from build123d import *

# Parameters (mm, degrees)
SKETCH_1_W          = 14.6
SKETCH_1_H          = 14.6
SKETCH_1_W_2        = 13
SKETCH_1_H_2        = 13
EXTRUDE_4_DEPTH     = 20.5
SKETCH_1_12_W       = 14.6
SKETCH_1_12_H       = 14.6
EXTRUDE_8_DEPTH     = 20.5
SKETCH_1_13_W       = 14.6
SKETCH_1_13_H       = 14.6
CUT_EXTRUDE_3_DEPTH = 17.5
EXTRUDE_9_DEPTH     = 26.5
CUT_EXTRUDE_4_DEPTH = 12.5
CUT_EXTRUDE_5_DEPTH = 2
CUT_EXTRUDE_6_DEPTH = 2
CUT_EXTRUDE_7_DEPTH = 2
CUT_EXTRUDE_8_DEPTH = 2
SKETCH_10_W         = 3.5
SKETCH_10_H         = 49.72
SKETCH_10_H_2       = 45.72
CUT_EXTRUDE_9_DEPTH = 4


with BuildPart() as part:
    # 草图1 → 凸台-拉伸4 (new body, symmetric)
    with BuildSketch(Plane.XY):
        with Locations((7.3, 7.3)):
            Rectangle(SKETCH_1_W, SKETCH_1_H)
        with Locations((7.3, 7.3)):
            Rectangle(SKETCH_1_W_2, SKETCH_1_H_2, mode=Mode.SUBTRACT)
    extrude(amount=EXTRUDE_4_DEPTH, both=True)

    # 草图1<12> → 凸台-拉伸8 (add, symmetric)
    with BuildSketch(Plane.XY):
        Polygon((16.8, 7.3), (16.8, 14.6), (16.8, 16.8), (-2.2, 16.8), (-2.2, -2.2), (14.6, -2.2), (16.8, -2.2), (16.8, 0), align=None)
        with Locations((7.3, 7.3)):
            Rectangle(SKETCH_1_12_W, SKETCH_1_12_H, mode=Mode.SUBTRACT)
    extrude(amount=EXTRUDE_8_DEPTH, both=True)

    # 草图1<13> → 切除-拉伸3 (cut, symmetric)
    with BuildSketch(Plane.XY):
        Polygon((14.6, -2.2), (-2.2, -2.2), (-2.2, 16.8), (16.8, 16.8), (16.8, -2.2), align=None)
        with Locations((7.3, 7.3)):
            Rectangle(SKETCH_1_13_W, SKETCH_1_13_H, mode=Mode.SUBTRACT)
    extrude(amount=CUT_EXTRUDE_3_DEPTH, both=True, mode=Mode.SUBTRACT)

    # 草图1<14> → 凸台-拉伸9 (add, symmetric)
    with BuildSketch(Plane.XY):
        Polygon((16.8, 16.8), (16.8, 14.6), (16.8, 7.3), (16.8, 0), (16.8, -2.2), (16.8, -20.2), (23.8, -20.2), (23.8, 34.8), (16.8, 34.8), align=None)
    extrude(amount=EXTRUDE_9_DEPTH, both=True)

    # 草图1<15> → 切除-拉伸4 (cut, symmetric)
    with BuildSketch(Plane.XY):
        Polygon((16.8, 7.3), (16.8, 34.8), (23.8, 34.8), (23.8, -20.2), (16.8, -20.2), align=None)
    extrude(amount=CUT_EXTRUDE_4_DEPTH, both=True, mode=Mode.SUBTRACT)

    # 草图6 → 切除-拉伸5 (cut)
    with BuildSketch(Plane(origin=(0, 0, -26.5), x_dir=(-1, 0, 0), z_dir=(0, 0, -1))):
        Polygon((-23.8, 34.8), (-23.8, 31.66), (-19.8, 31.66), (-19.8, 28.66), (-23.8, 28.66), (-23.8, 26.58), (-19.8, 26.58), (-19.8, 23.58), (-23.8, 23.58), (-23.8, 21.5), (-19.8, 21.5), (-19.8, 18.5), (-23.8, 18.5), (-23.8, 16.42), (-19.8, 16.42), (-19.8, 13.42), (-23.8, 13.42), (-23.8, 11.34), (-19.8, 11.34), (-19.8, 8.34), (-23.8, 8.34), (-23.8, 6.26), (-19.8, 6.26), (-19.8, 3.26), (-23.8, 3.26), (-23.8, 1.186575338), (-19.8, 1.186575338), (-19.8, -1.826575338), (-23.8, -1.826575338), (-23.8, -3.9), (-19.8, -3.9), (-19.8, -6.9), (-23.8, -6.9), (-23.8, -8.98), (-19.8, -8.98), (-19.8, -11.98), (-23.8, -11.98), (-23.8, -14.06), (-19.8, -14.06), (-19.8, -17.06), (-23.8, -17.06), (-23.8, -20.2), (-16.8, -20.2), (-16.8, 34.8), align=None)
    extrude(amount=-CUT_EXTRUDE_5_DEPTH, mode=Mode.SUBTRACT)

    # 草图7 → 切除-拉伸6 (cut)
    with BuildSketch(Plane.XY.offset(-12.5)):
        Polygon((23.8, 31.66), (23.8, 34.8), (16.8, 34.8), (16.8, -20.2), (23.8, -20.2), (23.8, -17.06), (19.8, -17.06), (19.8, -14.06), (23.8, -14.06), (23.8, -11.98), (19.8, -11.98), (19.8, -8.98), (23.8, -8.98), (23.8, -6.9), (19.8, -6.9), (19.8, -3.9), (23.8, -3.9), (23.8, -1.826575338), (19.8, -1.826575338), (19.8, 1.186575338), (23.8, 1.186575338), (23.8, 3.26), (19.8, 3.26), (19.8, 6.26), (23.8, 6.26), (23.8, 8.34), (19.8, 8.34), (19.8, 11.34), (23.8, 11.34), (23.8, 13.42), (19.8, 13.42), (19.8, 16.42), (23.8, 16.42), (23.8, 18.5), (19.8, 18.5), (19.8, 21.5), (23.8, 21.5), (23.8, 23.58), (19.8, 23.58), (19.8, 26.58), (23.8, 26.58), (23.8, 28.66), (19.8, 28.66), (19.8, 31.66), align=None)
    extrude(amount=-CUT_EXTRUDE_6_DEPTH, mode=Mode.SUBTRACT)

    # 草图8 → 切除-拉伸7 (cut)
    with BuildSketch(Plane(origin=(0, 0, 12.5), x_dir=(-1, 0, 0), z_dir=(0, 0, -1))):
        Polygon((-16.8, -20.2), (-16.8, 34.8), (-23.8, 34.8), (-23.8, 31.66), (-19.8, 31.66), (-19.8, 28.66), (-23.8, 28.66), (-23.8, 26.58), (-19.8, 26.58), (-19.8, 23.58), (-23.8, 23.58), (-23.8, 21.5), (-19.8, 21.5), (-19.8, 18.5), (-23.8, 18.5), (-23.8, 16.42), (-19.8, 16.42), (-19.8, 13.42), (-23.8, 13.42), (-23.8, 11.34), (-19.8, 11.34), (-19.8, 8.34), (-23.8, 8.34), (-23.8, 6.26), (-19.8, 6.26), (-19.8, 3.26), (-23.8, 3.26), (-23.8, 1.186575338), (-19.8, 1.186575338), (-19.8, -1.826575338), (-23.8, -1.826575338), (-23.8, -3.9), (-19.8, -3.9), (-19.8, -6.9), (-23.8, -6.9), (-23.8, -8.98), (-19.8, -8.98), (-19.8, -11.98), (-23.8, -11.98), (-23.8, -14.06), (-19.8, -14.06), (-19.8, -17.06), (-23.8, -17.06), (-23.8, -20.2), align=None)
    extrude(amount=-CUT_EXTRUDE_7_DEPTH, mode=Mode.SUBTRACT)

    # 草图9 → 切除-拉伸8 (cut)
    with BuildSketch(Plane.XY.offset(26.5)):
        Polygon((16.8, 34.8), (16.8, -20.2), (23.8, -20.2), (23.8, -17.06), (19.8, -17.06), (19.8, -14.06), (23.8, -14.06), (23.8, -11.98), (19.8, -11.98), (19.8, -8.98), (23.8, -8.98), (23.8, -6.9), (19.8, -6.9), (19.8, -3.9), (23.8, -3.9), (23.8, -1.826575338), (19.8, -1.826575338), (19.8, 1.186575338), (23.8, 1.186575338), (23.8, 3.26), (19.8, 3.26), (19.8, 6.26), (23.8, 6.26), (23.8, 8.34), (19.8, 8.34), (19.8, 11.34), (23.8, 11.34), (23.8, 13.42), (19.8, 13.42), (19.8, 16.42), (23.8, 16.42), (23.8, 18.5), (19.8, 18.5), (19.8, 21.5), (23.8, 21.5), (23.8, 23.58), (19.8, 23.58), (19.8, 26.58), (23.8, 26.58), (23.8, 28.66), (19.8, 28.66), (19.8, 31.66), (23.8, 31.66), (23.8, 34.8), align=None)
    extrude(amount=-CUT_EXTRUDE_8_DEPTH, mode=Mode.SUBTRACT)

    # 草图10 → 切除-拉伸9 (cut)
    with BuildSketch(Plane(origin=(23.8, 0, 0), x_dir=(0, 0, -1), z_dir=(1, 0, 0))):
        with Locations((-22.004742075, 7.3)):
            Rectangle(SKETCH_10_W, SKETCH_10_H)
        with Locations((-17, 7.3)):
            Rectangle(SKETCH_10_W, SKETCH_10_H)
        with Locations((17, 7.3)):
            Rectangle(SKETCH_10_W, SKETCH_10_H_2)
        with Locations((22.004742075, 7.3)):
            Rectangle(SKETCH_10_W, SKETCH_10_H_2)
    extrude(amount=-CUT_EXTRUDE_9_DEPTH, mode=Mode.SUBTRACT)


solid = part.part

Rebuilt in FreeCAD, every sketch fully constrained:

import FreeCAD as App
import Part
import Sketcher

V = App.Vector
Q = App.Units.Quantity


def add_polygon(sketch, points):
    """Adds a closed chain of lines whose ends are joined by coincident constraints."""
    first, n = sketch.GeometryCount, len(points)
    for a, b in zip(points, points[1:] + points[:1]):
        sketch.addGeometry(Part.LineSegment(App.Vector(*a, 0), App.Vector(*b, 0)), False)
    for i in range(n):
        sketch.addConstraint(Sketcher.Constraint("Coincident", first + i, 2, first + (i + 1) % n, 1))

doc = App.newDocument("Part")
body = doc.addObject("PartDesign::Body", "Body")

# Sketch on XY plane
sketch1 = body.newObject("Sketcher::SketchObject", "Sketch")
sketch1.AttachmentSupport = (doc.getObject("XY_Plane"), [""])
sketch1.MapMode = "FlatFace"
add_polygon(sketch1, [(0, 15), (0, 0), (15, 0), (15, 15)])  # lines 0-3
add_polygon(sketch1, [(14, 1), (1, 1), (1, 14), (14, 14)])  # lines 4-7
sketch1.addConstraint(Sketcher.Constraint("Vertical", 0))
sketch1.addConstraint(Sketcher.Constraint("Horizontal", 1))
sketch1.addConstraint(Sketcher.Constraint("Vertical", 2))
sketch1.addConstraint(Sketcher.Constraint("Horizontal", 3))
sketch1.addConstraint(Sketcher.Constraint("Horizontal", 4))
sketch1.addConstraint(Sketcher.Constraint("Vertical", 5))
sketch1.addConstraint(Sketcher.Constraint("Horizontal", 6))
sketch1.addConstraint(Sketcher.Constraint("Vertical", 7))
sketch1.addConstraint(Sketcher.Constraint("Coincident", 0, 2, -1, 1))
sketch1.addConstraint(Sketcher.Constraint("Equal", 3, 0))
sketch1.addConstraint(Sketcher.Constraint("Equal", 6, 5))
sketch1.addConstraint(Sketcher.Constraint("DistanceX", 4, 2, 4, 1, Q("13 mm")))
sketch1.addConstraint(Sketcher.Constraint("DistanceX", 1, 1, 1, 2, Q("14.6 mm")))
sketch1.addConstraint(Sketcher.Constraint("DistanceX", -1, 1, 4, 2, Q("0.8 mm")))
sketch1.addConstraint(Sketcher.Constraint("DistanceY", -1, 1, 4, 2, Q("0.8 mm")))
pad1 = body.newObject("PartDesign::Pad", "Pad")
pad1.Profile = sketch1
pad1.Length = 41
pad1.Midplane = True

# Sketch on XY plane
sketch2 = body.newObject("Sketcher::SketchObject", "Sketch001")
sketch2.AttachmentSupport = (doc.getObject("XY_Plane"), [""])
sketch2.MapMode = "FlatFace"
add_polygon(sketch2, [(17, 17), (-2, 17), (-2, -2), (17, -2)])  # lines 0-3
add_polygon(sketch2, [(15, 0), (0, 0), (0, 15), (15, 15)])  # lines 4-7
sketch2.addConstraint(Sketcher.Constraint("Horizontal", 0))
sketch2.addConstraint(Sketcher.Constraint("Vertical", 1))
sketch2.addConstraint(Sketcher.Constraint("Horizontal", 2))
sketch2.addConstraint(Sketcher.Constraint("Vertical", 3))
sketch2.addConstraint(Sketcher.Constraint("Horizontal", 4))
sketch2.addConstraint(Sketcher.Constraint("Vertical", 5))
sketch2.addConstraint(Sketcher.Constraint("Horizontal", 6))
sketch2.addConstraint(Sketcher.Constraint("Vertical", 7))
sketch2.addConstraint(Sketcher.Constraint("Coincident", 4, 2, -1, 1))
sketch2.addConstraint(Sketcher.Constraint("Equal", 2, 1))
sketch2.addConstraint(Sketcher.Constraint("Equal", 6, 5))
sketch2.addConstraint(Sketcher.Constraint("DistanceX", 0, 2, 0, 1, Q("19 mm")))
sketch2.addConstraint(Sketcher.Constraint("DistanceX", 4, 2, 4, 1, Q("14.6 mm")))
sketch2.addConstraint(Sketcher.Constraint("DistanceX", 0, 2, -1, 1, Q("2.2 mm")))
sketch2.addConstraint(Sketcher.Constraint("DistanceY", -1, 1, 0, 2, Q("16.8 mm")))
pad2 = body.newObject("PartDesign::Pad", "Pad001")
pad2.Profile = sketch2
pad2.Length = 41
pad2.Midplane = True

# Sketch on XY plane
sketch3 = body.newObject("Sketcher::SketchObject", "Sketch002")
sketch3.AttachmentSupport = (doc.getObject("XY_Plane"), [""])
sketch3.MapMode = "FlatFace"
add_polygon(sketch3, [(-2, -2), (17, -2), (17, 17), (-2, 17)])  # lines 0-3
add_polygon(sketch3, [(0, 0), (0, 15), (15, 15), (15, 0)])  # lines 4-7
sketch3.addConstraint(Sketcher.Constraint("Horizontal", 0))
sketch3.addConstraint(Sketcher.Constraint("Vertical", 1))
sketch3.addConstraint(Sketcher.Constraint("Horizontal", 2))
sketch3.addConstraint(Sketcher.Constraint("Vertical", 3))
sketch3.addConstraint(Sketcher.Constraint("Vertical", 4))
sketch3.addConstraint(Sketcher.Constraint("Horizontal", 5))
sketch3.addConstraint(Sketcher.Constraint("Vertical", 6))
sketch3.addConstraint(Sketcher.Constraint("Horizontal", 7))
sketch3.addConstraint(Sketcher.Constraint("Coincident", 7, 2, -1, 1))
sketch3.addConstraint(Sketcher.Constraint("Equal", 2, 1))
sketch3.addConstraint(Sketcher.Constraint("Equal", 7, 4))
sketch3.addConstraint(Sketcher.Constraint("DistanceX", 0, 1, 0, 2, Q("19 mm")))
sketch3.addConstraint(Sketcher.Constraint("DistanceX", 5, 1, 5, 2, Q("14.6 mm")))
sketch3.addConstraint(Sketcher.Constraint("DistanceX", -1, 1, 0, 2, Q("16.8 mm")))
sketch3.addConstraint(Sketcher.Constraint("DistanceY", 0, 2, -1, 1, Q("2.2 mm")))
pocket1 = body.newObject("PartDesign::Pocket", "Pocket")
pocket1.Profile = sketch3
pocket1.Length = 35
pocket1.Midplane = True

# Sketch on XY plane
sketch4 = body.newObject("Sketcher::SketchObject", "Sketch003")
sketch4.AttachmentSupport = (doc.getObject("XY_Plane"), [""])
sketch4.MapMode = "FlatFace"
add_polygon(sketch4, [(17, -20), (24, -20), (24, 35), (17, 35)])  # lines 0-3
sketch4.addConstraint(Sketcher.Constraint("Horizontal", 0))
sketch4.addConstraint(Sketcher.Constraint("Vertical", 1))
sketch4.addConstraint(Sketcher.Constraint("Horizontal", 2))
sketch4.addConstraint(Sketcher.Constraint("Vertical", 3))
sketch4.addConstraint(Sketcher.Constraint("DistanceX", 0, 1, 0, 2, Q("7 mm")))
sketch4.addConstraint(Sketcher.Constraint("DistanceY", 1, 1, 1, 2, Q("55 mm")))
sketch4.addConstraint(Sketcher.Constraint("DistanceX", -1, 1, 0, 2, Q("23.8 mm")))
sketch4.addConstraint(Sketcher.Constraint("DistanceY", 0, 2, -1, 1, Q("20.2 mm")))
pad3 = body.newObject("PartDesign::Pad", "Pad002")
pad3.Profile = sketch4
pad3.Length = 53
pad3.Midplane = True

# Sketch on XY plane
sketch5 = body.newObject("Sketcher::SketchObject", "Sketch004")
sketch5.AttachmentSupport = (doc.getObject("XY_Plane"), [""])
sketch5.MapMode = "FlatFace"
add_polygon(sketch5, [(17, 35), (17, -20), (24, -20), (24, 35)])  # lines 0-3
sketch5.addConstraint(Sketcher.Constraint("Vertical", 0))
sketch5.addConstraint(Sketcher.Constraint("Horizontal", 1))
sketch5.addConstraint(Sketcher.Constraint("Vertical", 2))
sketch5.addConstraint(Sketcher.Constraint("Horizontal", 3))
sketch5.addConstraint(Sketcher.Constraint("DistanceX", 1, 1, 1, 2, Q("7 mm")))
sketch5.addConstraint(Sketcher.Constraint("DistanceY", 0, 2, 0, 1, Q("55 mm")))
sketch5.addConstraint(Sketcher.Constraint("DistanceX", -1, 1, 0, 2, Q("16.8 mm")))
sketch5.addConstraint(Sketcher.Constraint("DistanceY", 0, 2, -1, 1, Q("20.2 mm")))
pocket2 = body.newObject("PartDesign::Pocket", "Pocket001")
pocket2.Profile = sketch5
pocket2.Length = 25
pocket2.Midplane = True

# Sketch on XY plane
sketch6 = body.newObject("Sketcher::SketchObject", "Sketch005")
sketch6.AttachmentSupport = (doc.getObject("XY_Plane"), [""])
sketch6.MapMode = "FlatFace"
sketch6.AttachmentOffset = App.Placement(V(0, 0, -26.5), App.Rotation())
add_polygon(sketch6, [(23.8, 34.8), (23.8, 31.7), (19.8, 31.7), (19.8, 28.7), (23.8, 28.7), (23.8, 26.6), (19.8, 26.6), (19.8, 23.6), (23.8, 23.6), (23.8, 21.5), (19.8, 21.5), (19.8, 18.5), (23.8, 18.5), (23.8, 16.4), (19.8, 16.4), (19.8, 13.4), (23.8, 13.4), (23.8, 11.3), (19.8, 11.3), (19.8, 8.3), (23.8, 8.3), (23.8, 6.3), (19.8, 6.3), (19.8, 3.3), (23.8, 3.3), (23.8, 1.2), (19.8, 1.2), (19.8, -1.8), (23.8, -1.8), (23.8, -3.9), (19.8, -3.9), (19.8, -6.9), (23.8, -6.9), (23.8, -9), (19.8, -9), (19.8, -12), (23.8, -12), (23.8, -14.1), (19.8, -14.1), (19.8, -17.1), (23.8, -17.1), (23.8, -20.2), (16.8, -20.2), (16.8, 34.8)])  # lines 0-43
sketch6.addConstraint(Sketcher.Constraint("Vertical", 0))
sketch6.addConstraint(Sketcher.Constraint("Horizontal", 1))
sketch6.addConstraint(Sketcher.Constraint("Vertical", 2))
sketch6.addConstraint(Sketcher.Constraint("Horizontal", 3))
sketch6.addConstraint(Sketcher.Constraint("Vertical", 4))
sketch6.addConstraint(Sketcher.Constraint("Horizontal", 5))
sketch6.addConstraint(Sketcher.Constraint("Vertical", 6))
sketch6.addConstraint(Sketcher.Constraint("Horizontal", 7))
sketch6.addConstraint(Sketcher.Constraint("Vertical", 8))
sketch6.addConstraint(Sketcher.Constraint("Horizontal", 9))
sketch6.addConstraint(Sketcher.Constraint("Vertical", 10))
sketch6.addConstraint(Sketcher.Constraint("Horizontal", 11))
sketch6.addConstraint(Sketcher.Constraint("Vertical", 12))
sketch6.addConstraint(Sketcher.Constraint("Horizontal", 13))
sketch6.addConstraint(Sketcher.Constraint("Vertical", 14))
sketch6.addConstraint(Sketcher.Constraint("Horizontal", 15))
sketch6.addConstraint(Sketcher.Constraint("Vertical", 16))
sketch6.addConstraint(Sketcher.Constraint("Horizontal", 17))
sketch6.addConstraint(Sketcher.Constraint("Vertical", 18))
sketch6.addConstraint(Sketcher.Constraint("Horizontal", 19))
sketch6.addConstraint(Sketcher.Constraint("Vertical", 20))
sketch6.addConstraint(Sketcher.Constraint("Horizontal", 21))
sketch6.addConstraint(Sketcher.Constraint("Vertical", 22))
sketch6.addConstraint(Sketcher.Constraint("Horizontal", 23))
sketch6.addConstraint(Sketcher.Constraint("Vertical", 24))
sketch6.addConstraint(Sketcher.Constraint("Horizontal", 25))
sketch6.addConstraint(Sketcher.Constraint("Vertical", 26))
sketch6.addConstraint(Sketcher.Constraint("Horizontal", 27))
sketch6.addConstraint(Sketcher.Constraint("Vertical", 28))
sketch6.addConstraint(Sketcher.Constraint("Horizontal", 29))
sketch6.addConstraint(Sketcher.Constraint("Vertical", 30))
sketch6.addConstraint(Sketcher.Constraint("Horizontal", 31))
sketch6.addConstraint(Sketcher.Constraint("Vertical", 32))
sketch6.addConstraint(Sketcher.Constraint("Horizontal", 33))
sketch6.addConstraint(Sketcher.Constraint("Vertical", 34))
sketch6.addConstraint(Sketcher.Constraint("Horizontal", 35))
sketch6.addConstraint(Sketcher.Constraint("Vertical", 36))
sketch6.addConstraint(Sketcher.Constraint("Horizontal", 37))
sketch6.addConstraint(Sketcher.Constraint("Vertical", 38))
sketch6.addConstraint(Sketcher.Constraint("Horizontal", 39))
sketch6.addConstraint(Sketcher.Constraint("Vertical", 40))
sketch6.addConstraint(Sketcher.Constraint("Horizontal", 41))
sketch6.addConstraint(Sketcher.Constraint("Vertical", 42))
sketch6.addConstraint(Sketcher.Constraint("Horizontal", 43))
sketch6.addConstraint(Sketcher.Constraint("Vertical", 0, 2, 3, 2))
sketch6.addConstraint(Sketcher.Constraint("Vertical", 2, 2, 5, 2))
sketch6.addConstraint(Sketcher.Constraint("Vertical", 4, 2, 7, 2))
sketch6.addConstraint(Sketcher.Constraint("Vertical", 6, 2, 9, 2))
sketch6.addConstraint(Sketcher.Constraint("Vertical", 8, 2, 11, 2))
sketch6.addConstraint(Sketcher.Constraint("Vertical", 10, 2, 13, 2))
sketch6.addConstraint(Sketcher.Constraint("Vertical", 12, 2, 15, 2))
sketch6.addConstraint(Sketcher.Constraint("Vertical", 14, 2, 17, 2))
sketch6.addConstraint(Sketcher.Constraint("Vertical", 16, 2, 19, 2))
sketch6.addConstraint(Sketcher.Constraint("Vertical", 18, 2, 21, 2))
sketch6.addConstraint(Sketcher.Constraint("Vertical", 20, 2, 23, 2))
sketch6.addConstraint(Sketcher.Constraint("Vertical", 22, 2, 25, 2))
sketch6.addConstraint(Sketcher.Constraint("Vertical", 24, 2, 27, 2))
sketch6.addConstraint(Sketcher.Constraint("Vertical", 26, 2, 29, 2))
sketch6.addConstraint(Sketcher.Constraint("Vertical", 28, 2, 31, 2))
sketch6.addConstraint(Sketcher.Constraint("Vertical", 30, 2, 33, 2))
sketch6.addConstraint(Sketcher.Constraint("Vertical", 32, 2, 35, 2))
sketch6.addConstraint(Sketcher.Constraint("Vertical", 34, 2, 37, 2))
sketch6.addConstraint(Sketcher.Constraint("Vertical", 36, 2, 39, 2))
sketch6.addConstraint(Sketcher.Constraint("Equal", 2, 6))
sketch6.addConstraint(Sketcher.Constraint("Equal", 4, 8))
sketch6.addConstraint(Sketcher.Constraint("Equal", 6, 10))
sketch6.addConstraint(Sketcher.Constraint("Equal", 8, 12))
sketch6.addConstraint(Sketcher.Constraint("Equal", 10, 14))
sketch6.addConstraint(Sketcher.Constraint("Equal", 12, 16))
sketch6.addConstraint(Sketcher.Constraint("Equal", 14, 18))
sketch6.addConstraint(Sketcher.Constraint("Equal", 16, 20))
sketch6.addConstraint(Sketcher.Constraint("Equal", 18, 22))
sketch6.addConstraint(Sketcher.Constraint("Equal", 24, 28))
sketch6.addConstraint(Sketcher.Constraint("Equal", 22, 30))
sketch6.addConstraint(Sketcher.Constraint("Equal", 20, 32))
sketch6.addConstraint(Sketcher.Constraint("Equal", 30, 34))
sketch6.addConstraint(Sketcher.Constraint("Equal", 32, 36))
sketch6.addConstraint(Sketcher.Constraint("Equal", 34, 38))
sketch6.addConstraint(Sketcher.Constraint("Equal", 0, 40))
sketch6.addConstraint(Sketcher.Constraint("DistanceX", 1, 2, 1, 1, Q("4 mm")))
sketch6.addConstraint(Sketcher.Constraint("DistanceX", 41, 2, 41, 1, Q("7 mm")))
sketch6.addConstraint(Sketcher.Constraint("DistanceY", 2, 2, 2, 1, Q("3 mm")))
sketch6.addConstraint(Sketcher.Constraint("DistanceY", 42, 1, 42, 2, Q("55 mm")))
sketch6.addConstraint(Sketcher.Constraint("DistanceY", 0, 2, 0, 1, Q("3.14 mm")))
sketch6.addConstraint(Sketcher.Constraint("DistanceY", 4, 2, 4, 1, Q("2.08 mm")))
sketch6.addConstraint(Sketcher.Constraint("DistanceX", -1, 1, 0, 2, Q("23.8 mm")))
sketch6.addConstraint(Sketcher.Constraint("DistanceY", -1, 1, 8, 2, Q("21.5 mm")))
sketch6.addConstraint(Sketcher.Constraint("DistanceY", 26, 2, 26, 1, Q("3.013151 mm")))
pocket3 = body.newObject("PartDesign::Pocket", "Pocket002")
pocket3.Profile = sketch6
pocket3.Length = 2
pocket3.Reversed = True

# Sketch on XY plane
sketch7 = body.newObject("Sketcher::SketchObject", "Sketch006")
sketch7.AttachmentSupport = (doc.getObject("XY_Plane"), [""])
sketch7.MapMode = "FlatFace"
sketch7.AttachmentOffset = App.Placement(V(0, 0, -12.5), App.Rotation())
add_polygon(sketch7, [(23.8, 31.7), (23.8, 34.8), (16.8, 34.8), (16.8, -20.2), (23.8, -20.2), (23.8, -17.1), (19.8, -17.1), (19.8, -14.1), (23.8, -14.1), (23.8, -12), (19.8, -12), (19.8, -9), (23.8, -9), (23.8, -6.9), (19.8, -6.9), (19.8, -3.9), (23.8, -3.9), (23.8, -1.8), (19.8, -1.8), (19.8, 1.2), (23.8, 1.2), (23.8, 3.3), (19.8, 3.3), (19.8, 6.3), (23.8, 6.3), (23.8, 8.3), (19.8, 8.3), (19.8, 11.3), (23.8, 11.3), (23.8, 13.4), (19.8, 13.4), (19.8, 16.4), (23.8, 16.4), (23.8, 18.5), (19.8, 18.5), (19.8, 21.5), (23.8, 21.5), (23.8, 23.6), (19.8, 23.6), (19.8, 26.6), (23.8, 26.6), (23.8, 28.7), (19.8, 28.7), (19.8, 31.7)])  # lines 0-43
sketch7.addConstraint(Sketcher.Constraint("Vertical", 0))
sketch7.addConstraint(Sketcher.Constraint("Horizontal", 1))
sketch7.addConstraint(Sketcher.Constraint("Vertical", 2))
sketch7.addConstraint(Sketcher.Constraint("Horizontal", 3))
sketch7.addConstraint(Sketcher.Constraint("Vertical", 4))
sketch7.addConstraint(Sketcher.Constraint("Horizontal", 5))
sketch7.addConstraint(Sketcher.Constraint("Vertical", 6))
sketch7.addConstraint(Sketcher.Constraint("Horizontal", 7))
sketch7.addConstraint(Sketcher.Constraint("Vertical", 8))
sketch7.addConstraint(Sketcher.Constraint("Horizontal", 9))
sketch7.addConstraint(Sketcher.Constraint("Vertical", 10))
sketch7.addConstraint(Sketcher.Constraint("Horizontal", 11))
sketch7.addConstraint(Sketcher.Constraint("Vertical", 12))
sketch7.addConstraint(Sketcher.Constraint("Horizontal", 13))
sketch7.addConstraint(Sketcher.Constraint("Vertical", 14))
sketch7.addConstraint(Sketcher.Constraint("Horizontal", 15))
sketch7.addConstraint(Sketcher.Constraint("Vertical", 16))
sketch7.addConstraint(Sketcher.Constraint("Horizontal", 17))
sketch7.addConstraint(Sketcher.Constraint("Vertical", 18))
sketch7.addConstraint(Sketcher.Constraint("Horizontal", 19))
sketch7.addConstraint(Sketcher.Constraint("Vertical", 20))
sketch7.addConstraint(Sketcher.Constraint("Horizontal", 21))
sketch7.addConstraint(Sketcher.Constraint("Vertical", 22))
sketch7.addConstraint(Sketcher.Constraint("Horizontal", 23))
sketch7.addConstraint(Sketcher.Constraint("Vertical", 24))
sketch7.addConstraint(Sketcher.Constraint("Horizontal", 25))
sketch7.addConstraint(Sketcher.Constraint("Vertical", 26))
sketch7.addConstraint(Sketcher.Constraint("Horizontal", 27))
sketch7.addConstraint(Sketcher.Constraint("Vertical", 28))
sketch7.addConstraint(Sketcher.Constraint("Horizontal", 29))
sketch7.addConstraint(Sketcher.Constraint("Vertical", 30))
sketch7.addConstraint(Sketcher.Constraint("Horizontal", 31))
sketch7.addConstraint(Sketcher.Constraint("Vertical", 32))
sketch7.addConstraint(Sketcher.Constraint("Horizontal", 33))
sketch7.addConstraint(Sketcher.Constraint("Vertical", 34))
sketch7.addConstraint(Sketcher.Constraint("Horizontal", 35))
sketch7.addConstraint(Sketcher.Constraint("Vertical", 36))
sketch7.addConstraint(Sketcher.Constraint("Horizontal", 37))
sketch7.addConstraint(Sketcher.Constraint("Vertical", 38))
sketch7.addConstraint(Sketcher.Constraint("Horizontal", 39))
sketch7.addConstraint(Sketcher.Constraint("Vertical", 40))
sketch7.addConstraint(Sketcher.Constraint("Horizontal", 41))
sketch7.addConstraint(Sketcher.Constraint("Vertical", 42))
sketch7.addConstraint(Sketcher.Constraint("Horizontal", 43))
sketch7.addConstraint(Sketcher.Constraint("Vertical", 0, 2, 3, 2))
sketch7.addConstraint(Sketcher.Constraint("Vertical", 4, 2, 7, 2))
sketch7.addConstraint(Sketcher.Constraint("Vertical", 6, 2, 9, 2))
sketch7.addConstraint(Sketcher.Constraint("Vertical", 8, 2, 11, 2))
sketch7.addConstraint(Sketcher.Constraint("Vertical", 10, 2, 13, 2))
sketch7.addConstraint(Sketcher.Constraint("Vertical", 12, 2, 15, 2))
sketch7.addConstraint(Sketcher.Constraint("Vertical", 14, 2, 17, 2))
sketch7.addConstraint(Sketcher.Constraint("Vertical", 16, 2, 19, 2))
sketch7.addConstraint(Sketcher.Constraint("Vertical", 18, 2, 21, 2))
sketch7.addConstraint(Sketcher.Constraint("Vertical", 20, 2, 23, 2))
sketch7.addConstraint(Sketcher.Constraint("Vertical", 22, 2, 25, 2))
sketch7.addConstraint(Sketcher.Constraint("Vertical", 24, 2, 27, 2))
sketch7.addConstraint(Sketcher.Constraint("Vertical", 26, 2, 29, 2))
sketch7.addConstraint(Sketcher.Constraint("Vertical", 28, 2, 31, 2))
sketch7.addConstraint(Sketcher.Constraint("Vertical", 30, 2, 33, 2))
sketch7.addConstraint(Sketcher.Constraint("Vertical", 32, 2, 35, 2))
sketch7.addConstraint(Sketcher.Constraint("Vertical", 34, 2, 37, 2))
sketch7.addConstraint(Sketcher.Constraint("Vertical", 36, 2, 39, 2))
sketch7.addConstraint(Sketcher.Constraint("Vertical", 38, 2, 41, 2))
sketch7.addConstraint(Sketcher.Constraint("Equal", 0, 4))
sketch7.addConstraint(Sketcher.Constraint("Equal", 6, 10))
sketch7.addConstraint(Sketcher.Constraint("Equal", 8, 12))
sketch7.addConstraint(Sketcher.Constraint("Equal", 10, 14))
sketch7.addConstraint(Sketcher.Constraint("Equal", 16, 20))
sketch7.addConstraint(Sketcher.Constraint("Equal", 14, 22))
sketch7.addConstraint(Sketcher.Constraint("Equal", 12, 24))
sketch7.addConstraint(Sketcher.Constraint("Equal", 22, 26))
sketch7.addConstraint(Sketcher.Constraint("Equal", 24, 28))
sketch7.addConstraint(Sketcher.Constraint("Equal", 26, 30))
sketch7.addConstraint(Sketcher.Constraint("Equal", 28, 32))
sketch7.addConstraint(Sketcher.Constraint("Equal", 30, 34))
sketch7.addConstraint(Sketcher.Constraint("Equal", 32, 36))
sketch7.addConstraint(Sketcher.Constraint("Equal", 34, 38))
sketch7.addConstraint(Sketcher.Constraint("Equal", 36, 40))
sketch7.addConstraint(Sketcher.Constraint("Equal", 38, 42))
sketch7.addConstraint(Sketcher.Constraint("DistanceX", 1, 2, 1, 1, Q("7 mm")))
sketch7.addConstraint(Sketcher.Constraint("DistanceX", 5, 2, 5, 1, Q("4 mm")))
sketch7.addConstraint(Sketcher.Constraint("DistanceY", 2, 2, 2, 1, Q("55 mm")))
sketch7.addConstraint(Sketcher.Constraint("DistanceY", 6, 1, 6, 2, Q("3 mm")))
sketch7.addConstraint(Sketcher.Constraint("DistanceY", 0, 1, 0, 2, Q("3.14 mm")))
sketch7.addConstraint(Sketcher.Constraint("DistanceY", 8, 1, 8, 2, Q("2.08 mm")))
sketch7.addConstraint(Sketcher.Constraint("DistanceX", -1, 1, 0, 2, Q("23.8 mm")))
sketch7.addConstraint(Sketcher.Constraint("DistanceY", -1, 1, 0, 2, Q("34.8 mm")))
sketch7.addConstraint(Sketcher.Constraint("DistanceY", 18, 1, 18, 2, Q("3.013151 mm")))
pocket4 = body.newObject("PartDesign::Pocket", "Pocket003")
pocket4.Profile = sketch7
pocket4.Length = 2

# Sketch on XY plane
sketch8 = body.newObject("Sketcher::SketchObject", "Sketch007")
sketch8.AttachmentSupport = (doc.getObject("XY_Plane"), [""])
sketch8.MapMode = "FlatFace"
sketch8.AttachmentOffset = App.Placement(V(0, 0, 12.5), App.Rotation())
add_polygon(sketch8, [(16.8, -20.2), (16.8, 34.8), (23.8, 34.8), (23.8, 31.7), (19.8, 31.7), (19.8, 28.7), (23.8, 28.7), (23.8, 26.6), (19.8, 26.6), (19.8, 23.6), (23.8, 23.6), (23.8, 21.5), (19.8, 21.5), (19.8, 18.5), (23.8, 18.5), (23.8, 16.4), (19.8, 16.4), (19.8, 13.4), (23.8, 13.4), (23.8, 11.3), (19.8, 11.3), (19.8, 8.3), (23.8, 8.3), (23.8, 6.3), (19.8, 6.3), (19.8, 3.3), (23.8, 3.3), (23.8, 1.2), (19.8, 1.2), (19.8, -1.8), (23.8, -1.8), (23.8, -3.9), (19.8, -3.9), (19.8, -6.9), (23.8, -6.9), (23.8, -9), (19.8, -9), (19.8, -12), (23.8, -12), (23.8, -14.1), (19.8, -14.1), (19.8, -17.1), (23.8, -17.1), (23.8, -20.2)])  # lines 0-43
sketch8.addConstraint(Sketcher.Constraint("Vertical", 0))
sketch8.addConstraint(Sketcher.Constraint("Horizontal", 1))
sketch8.addConstraint(Sketcher.Constraint("Vertical", 2))
sketch8.addConstraint(Sketcher.Constraint("Horizontal", 3))
sketch8.addConstraint(Sketcher.Constraint("Vertical", 4))
sketch8.addConstraint(Sketcher.Constraint("Horizontal", 5))
sketch8.addConstraint(Sketcher.Constraint("Vertical", 6))
sketch8.addConstraint(Sketcher.Constraint("Horizontal", 7))
sketch8.addConstraint(Sketcher.Constraint("Vertical", 8))
sketch8.addConstraint(Sketcher.Constraint("Horizontal", 9))
sketch8.addConstraint(Sketcher.Constraint("Vertical", 10))
sketch8.addConstraint(Sketcher.Constraint("Horizontal", 11))
sketch8.addConstraint(Sketcher.Constraint("Vertical", 12))
sketch8.addConstraint(Sketcher.Constraint("Horizontal", 13))
sketch8.addConstraint(Sketcher.Constraint("Vertical", 14))
sketch8.addConstraint(Sketcher.Constraint("Horizontal", 15))
sketch8.addConstraint(Sketcher.Constraint("Vertical", 16))
sketch8.addConstraint(Sketcher.Constraint("Horizontal", 17))
sketch8.addConstraint(Sketcher.Constraint("Vertical", 18))
sketch8.addConstraint(Sketcher.Constraint("Horizontal", 19))
sketch8.addConstraint(Sketcher.Constraint("Vertical", 20))
sketch8.addConstraint(Sketcher.Constraint("Horizontal", 21))
sketch8.addConstraint(Sketcher.Constraint("Vertical", 22))
sketch8.addConstraint(Sketcher.Constraint("Horizontal", 23))
sketch8.addConstraint(Sketcher.Constraint("Vertical", 24))
sketch8.addConstraint(Sketcher.Constraint("Horizontal", 25))
sketch8.addConstraint(Sketcher.Constraint("Vertical", 26))
sketch8.addConstraint(Sketcher.Constraint("Horizontal", 27))
sketch8.addConstraint(Sketcher.Constraint("Vertical", 28))
sketch8.addConstraint(Sketcher.Constraint("Horizontal", 29))
sketch8.addConstraint(Sketcher.Constraint("Vertical", 30))
sketch8.addConstraint(Sketcher.Constraint("Horizontal", 31))
sketch8.addConstraint(Sketcher.Constraint("Vertical", 32))
sketch8.addConstraint(Sketcher.Constraint("Horizontal", 33))
sketch8.addConstraint(Sketcher.Constraint("Vertical", 34))
sketch8.addConstraint(Sketcher.Constraint("Horizontal", 35))
sketch8.addConstraint(Sketcher.Constraint("Vertical", 36))
sketch8.addConstraint(Sketcher.Constraint("Horizontal", 37))
sketch8.addConstraint(Sketcher.Constraint("Vertical", 38))
sketch8.addConstraint(Sketcher.Constraint("Horizontal", 39))
sketch8.addConstraint(Sketcher.Constraint("Vertical", 40))
sketch8.addConstraint(Sketcher.Constraint("Horizontal", 41))
sketch8.addConstraint(Sketcher.Constraint("Vertical", 42))
sketch8.addConstraint(Sketcher.Constraint("Horizontal", 43))
sketch8.addConstraint(Sketcher.Constraint("Vertical", 2, 2, 5, 2))
sketch8.addConstraint(Sketcher.Constraint("Vertical", 4, 2, 7, 2))
sketch8.addConstraint(Sketcher.Constraint("Vertical", 6, 2, 9, 2))
sketch8.addConstraint(Sketcher.Constraint("Vertical", 8, 2, 11, 2))
sketch8.addConstraint(Sketcher.Constraint("Vertical", 10, 2, 13, 2))
sketch8.addConstraint(Sketcher.Constraint("Vertical", 12, 2, 15, 2))
sketch8.addConstraint(Sketcher.Constraint("Vertical", 14, 2, 17, 2))
sketch8.addConstraint(Sketcher.Constraint("Vertical", 16, 2, 19, 2))
sketch8.addConstraint(Sketcher.Constraint("Vertical", 18, 2, 21, 2))
sketch8.addConstraint(Sketcher.Constraint("Vertical", 20, 2, 23, 2))
sketch8.addConstraint(Sketcher.Constraint("Vertical", 22, 2, 25, 2))
sketch8.addConstraint(Sketcher.Constraint("Vertical", 24, 2, 27, 2))
sketch8.addConstraint(Sketcher.Constraint("Vertical", 26, 2, 29, 2))
sketch8.addConstraint(Sketcher.Constraint("Vertical", 28, 2, 31, 2))
sketch8.addConstraint(Sketcher.Constraint("Vertical", 30, 2, 33, 2))
sketch8.addConstraint(Sketcher.Constraint("Vertical", 32, 2, 35, 2))
sketch8.addConstraint(Sketcher.Constraint("Vertical", 34, 2, 37, 2))
sketch8.addConstraint(Sketcher.Constraint("Vertical", 36, 2, 39, 2))
sketch8.addConstraint(Sketcher.Constraint("Vertical", 38, 2, 41, 2))
sketch8.addConstraint(Sketcher.Constraint("Equal", 4, 8))
sketch8.addConstraint(Sketcher.Constraint("Equal", 6, 10))
sketch8.addConstraint(Sketcher.Constraint("Equal", 8, 12))
sketch8.addConstraint(Sketcher.Constraint("Equal", 10, 14))
sketch8.addConstraint(Sketcher.Constraint("Equal", 12, 16))
sketch8.addConstraint(Sketcher.Constraint("Equal", 14, 18))
sketch8.addConstraint(Sketcher.Constraint("Equal", 16, 20))
sketch8.addConstraint(Sketcher.Constraint("Equal", 18, 22))
sketch8.addConstraint(Sketcher.Constraint("Equal", 20, 24))
sketch8.addConstraint(Sketcher.Constraint("Equal", 26, 30))
sketch8.addConstraint(Sketcher.Constraint("Equal", 24, 32))
sketch8.addConstraint(Sketcher.Constraint("Equal", 22, 34))
sketch8.addConstraint(Sketcher.Constraint("Equal", 32, 36))
sketch8.addConstraint(Sketcher.Constraint("Equal", 34, 38))
sketch8.addConstraint(Sketcher.Constraint("Equal", 36, 40))
sketch8.addConstraint(Sketcher.Constraint("Equal", 2, 42))
sketch8.addConstraint(Sketcher.Constraint("DistanceX", 1, 1, 1, 2, Q("7 mm")))
sketch8.addConstraint(Sketcher.Constraint("DistanceX", 3, 2, 3, 1, Q("4 mm")))
sketch8.addConstraint(Sketcher.Constraint("DistanceY", 0, 1, 0, 2, Q("55 mm")))
sketch8.addConstraint(Sketcher.Constraint("DistanceY", 4, 2, 4, 1, Q("3 mm")))
sketch8.addConstraint(Sketcher.Constraint("DistanceY", 2, 2, 2, 1, Q("3.14 mm")))
sketch8.addConstraint(Sketcher.Constraint("DistanceY", 6, 2, 6, 1, Q("2.08 mm")))
sketch8.addConstraint(Sketcher.Constraint("DistanceX", -1, 1, 0, 2, Q("16.8 mm")))
sketch8.addConstraint(Sketcher.Constraint("DistanceY", -1, 1, 0, 2, Q("34.8 mm")))
sketch8.addConstraint(Sketcher.Constraint("DistanceY", 28, 2, 28, 1, Q("3.013151 mm")))
pocket5 = body.newObject("PartDesign::Pocket", "Pocket004")
pocket5.Profile = sketch8
pocket5.Length = 2
pocket5.Reversed = True

# Sketch on XY plane
sketch9 = body.newObject("Sketcher::SketchObject", "Sketch008")
sketch9.AttachmentSupport = (doc.getObject("XY_Plane"), [""])
sketch9.MapMode = "FlatFace"
sketch9.AttachmentOffset = App.Placement(V(0, 0, 26.5), App.Rotation())
add_polygon(sketch9, [(16.8, 34.8), (16.8, -20.2), (23.8, -20.2), (23.8, -17.1), (19.8, -17.1), (19.8, -14.1), (23.8, -14.1), (23.8, -12), (19.8, -12), (19.8, -9), (23.8, -9), (23.8, -6.9), (19.8, -6.9), (19.8, -3.9), (23.8, -3.9), (23.8, -1.8), (19.8, -1.8), (19.8, 1.2), (23.8, 1.2), (23.8, 3.3), (19.8, 3.3), (19.8, 6.3), (23.8, 6.3), (23.8, 8.3), (19.8, 8.3), (19.8, 11.3), (23.8, 11.3), (23.8, 13.4), (19.8, 13.4), (19.8, 16.4), (23.8, 16.4), (23.8, 18.5), (19.8, 18.5), (19.8, 21.5), (23.8, 21.5), (23.8, 23.6), (19.8, 23.6), (19.8, 26.6), (23.8, 26.6), (23.8, 28.7), (19.8, 28.7), (19.8, 31.7), (23.8, 31.7), (23.8, 34.8)])  # lines 0-43
sketch9.addConstraint(Sketcher.Constraint("Vertical", 0))
sketch9.addConstraint(Sketcher.Constraint("Horizontal", 1))
sketch9.addConstraint(Sketcher.Constraint("Vertical", 2))
sketch9.addConstraint(Sketcher.Constraint("Horizontal", 3))
sketch9.addConstraint(Sketcher.Constraint("Vertical", 4))
sketch9.addConstraint(Sketcher.Constraint("Horizontal", 5))
sketch9.addConstraint(Sketcher.Constraint("Vertical", 6))
sketch9.addConstraint(Sketcher.Constraint("Horizontal", 7))
sketch9.addConstraint(Sketcher.Constraint("Vertical", 8))
sketch9.addConstraint(Sketcher.Constraint("Horizontal", 9))
sketch9.addConstraint(Sketcher.Constraint("Vertical", 10))
sketch9.addConstraint(Sketcher.Constraint("Horizontal", 11))
sketch9.addConstraint(Sketcher.Constraint("Vertical", 12))
sketch9.addConstraint(Sketcher.Constraint("Horizontal", 13))
sketch9.addConstraint(Sketcher.Constraint("Vertical", 14))
sketch9.addConstraint(Sketcher.Constraint("Horizontal", 15))
sketch9.addConstraint(Sketcher.Constraint("Vertical", 16))
sketch9.addConstraint(Sketcher.Constraint("Horizontal", 17))
sketch9.addConstraint(Sketcher.Constraint("Vertical", 18))
sketch9.addConstraint(Sketcher.Constraint("Horizontal", 19))
sketch9.addConstraint(Sketcher.Constraint("Vertical", 20))
sketch9.addConstraint(Sketcher.Constraint("Horizontal", 21))
sketch9.addConstraint(Sketcher.Constraint("Vertical", 22))
sketch9.addConstraint(Sketcher.Constraint("Horizontal", 23))
sketch9.addConstraint(Sketcher.Constraint("Vertical", 24))
sketch9.addConstraint(Sketcher.Constraint("Horizontal", 25))
sketch9.addConstraint(Sketcher.Constraint("Vertical", 26))
sketch9.addConstraint(Sketcher.Constraint("Horizontal", 27))
sketch9.addConstraint(Sketcher.Constraint("Vertical", 28))
sketch9.addConstraint(Sketcher.Constraint("Horizontal", 29))
sketch9.addConstraint(Sketcher.Constraint("Vertical", 30))
sketch9.addConstraint(Sketcher.Constraint("Horizontal", 31))
sketch9.addConstraint(Sketcher.Constraint("Vertical", 32))
sketch9.addConstraint(Sketcher.Constraint("Horizontal", 33))
sketch9.addConstraint(Sketcher.Constraint("Vertical", 34))
sketch9.addConstraint(Sketcher.Constraint("Horizontal", 35))
sketch9.addConstraint(Sketcher.Constraint("Vertical", 36))
sketch9.addConstraint(Sketcher.Constraint("Horizontal", 37))
sketch9.addConstraint(Sketcher.Constraint("Vertical", 38))
sketch9.addConstraint(Sketcher.Constraint("Horizontal", 39))
sketch9.addConstraint(Sketcher.Constraint("Vertical", 40))
sketch9.addConstraint(Sketcher.Constraint("Horizontal", 41))
sketch9.addConstraint(Sketcher.Constraint("Vertical", 42))
sketch9.addConstraint(Sketcher.Constraint("Horizontal", 43))
sketch9.addConstraint(Sketcher.Constraint("Vertical", 2, 2, 5, 2))
sketch9.addConstraint(Sketcher.Constraint("Vertical", 4, 2, 7, 2))
sketch9.addConstraint(Sketcher.Constraint("Vertical", 6, 2, 9, 2))
sketch9.addConstraint(Sketcher.Constraint("Vertical", 8, 2, 11, 2))
sketch9.addConstraint(Sketcher.Constraint("Vertical", 10, 2, 13, 2))
sketch9.addConstraint(Sketcher.Constraint("Vertical", 12, 2, 15, 2))
sketch9.addConstraint(Sketcher.Constraint("Vertical", 14, 2, 17, 2))
sketch9.addConstraint(Sketcher.Constraint("Vertical", 16, 2, 19, 2))
sketch9.addConstraint(Sketcher.Constraint("Vertical", 18, 2, 21, 2))
sketch9.addConstraint(Sketcher.Constraint("Vertical", 20, 2, 23, 2))
sketch9.addConstraint(Sketcher.Constraint("Vertical", 22, 2, 25, 2))
sketch9.addConstraint(Sketcher.Constraint("Vertical", 24, 2, 27, 2))
sketch9.addConstraint(Sketcher.Constraint("Vertical", 26, 2, 29, 2))
sketch9.addConstraint(Sketcher.Constraint("Vertical", 28, 2, 31, 2))
sketch9.addConstraint(Sketcher.Constraint("Vertical", 30, 2, 33, 2))
sketch9.addConstraint(Sketcher.Constraint("Vertical", 32, 2, 35, 2))
sketch9.addConstraint(Sketcher.Constraint("Vertical", 34, 2, 37, 2))
sketch9.addConstraint(Sketcher.Constraint("Vertical", 36, 2, 39, 2))
sketch9.addConstraint(Sketcher.Constraint("Vertical", 38, 2, 41, 2))
sketch9.addConstraint(Sketcher.Constraint("Equal", 4, 8))
sketch9.addConstraint(Sketcher.Constraint("Equal", 6, 10))
sketch9.addConstraint(Sketcher.Constraint("Equal", 8, 12))
sketch9.addConstraint(Sketcher.Constraint("Equal", 14, 18))
sketch9.addConstraint(Sketcher.Constraint("Equal", 12, 20))
sketch9.addConstraint(Sketcher.Constraint("Equal", 10, 22))
sketch9.addConstraint(Sketcher.Constraint("Equal", 20, 24))
sketch9.addConstraint(Sketcher.Constraint("Equal", 22, 26))
sketch9.addConstraint(Sketcher.Constraint("Equal", 24, 28))
sketch9.addConstraint(Sketcher.Constraint("Equal", 26, 30))
sketch9.addConstraint(Sketcher.Constraint("Equal", 28, 32))
sketch9.addConstraint(Sketcher.Constraint("Equal", 30, 34))
sketch9.addConstraint(Sketcher.Constraint("Equal", 32, 36))
sketch9.addConstraint(Sketcher.Constraint("Equal", 34, 38))
sketch9.addConstraint(Sketcher.Constraint("Equal", 36, 40))
sketch9.addConstraint(Sketcher.Constraint("Equal", 2, 42))
sketch9.addConstraint(Sketcher.Constraint("DistanceX", 1, 1, 1, 2, Q("7 mm")))
sketch9.addConstraint(Sketcher.Constraint("DistanceX", 3, 2, 3, 1, Q("4 mm")))
sketch9.addConstraint(Sketcher.Constraint("DistanceY", 0, 2, 0, 1, Q("55 mm")))
sketch9.addConstraint(Sketcher.Constraint("DistanceY", 4, 1, 4, 2, Q("3 mm")))
sketch9.addConstraint(Sketcher.Constraint("DistanceY", 2, 1, 2, 2, Q("3.14 mm")))
sketch9.addConstraint(Sketcher.Constraint("DistanceY", 6, 1, 6, 2, Q("2.08 mm")))
sketch9.addConstraint(Sketcher.Constraint("DistanceX", -1, 1, 0, 2, Q("16.8 mm")))
sketch9.addConstraint(Sketcher.Constraint("DistanceY", 0, 2, -1, 1, Q("20.2 mm")))
sketch9.addConstraint(Sketcher.Constraint("DistanceY", 16, 1, 16, 2, Q("3.013151 mm")))
pocket6 = body.newObject("PartDesign::Pocket", "Pocket005")
pocket6.Profile = sketch9
pocket6.Length = 2

# Sketch on YZ plane
sketch10 = body.newObject("Sketcher::SketchObject", "Sketch009")
sketch10.AttachmentSupport = (doc.getObject("YZ_Plane"), [""])
sketch10.MapMode = "FlatFace"
sketch10.AttachmentOffset = App.Placement(V(0, 0, 23.8), App.Rotation())
add_polygon(sketch10, [(32.2, 23.8), (-17.6, 23.8), (-17.6, 20.3), (32.2, 20.3)])  # lines 0-3
add_polygon(sketch10, [(32.2, 18.8), (-17.6, 18.8), (-17.6, 15.2), (32.2, 15.2)])  # lines 4-7
add_polygon(sketch10, [(30.2, -15.2), (-15.6, -15.2), (-15.6, -18.8), (30.2, -18.8)])  # lines 8-11
add_polygon(sketch10, [(30.2, -20.3), (-15.6, -20.3), (-15.6, -23.8), (30.2, -23.8)])  # lines 12-15
sketch10.addConstraint(Sketcher.Constraint("Horizontal", 0))
sketch10.addConstraint(Sketcher.Constraint("Vertical", 1))
sketch10.addConstraint(Sketcher.Constraint("Horizontal", 2))
sketch10.addConstraint(Sketcher.Constraint("Vertical", 3))
sketch10.addConstraint(Sketcher.Constraint("Horizontal", 4))
sketch10.addConstraint(Sketcher.Constraint("Vertical", 5))
sketch10.addConstraint(Sketcher.Constraint("Horizontal", 6))
sketch10.addConstraint(Sketcher.Constraint("Vertical", 7))
sketch10.addConstraint(Sketcher.Constraint("Horizontal", 8))
sketch10.addConstraint(Sketcher.Constraint("Vertical", 9))
sketch10.addConstraint(Sketcher.Constraint("Horizontal", 10))
sketch10.addConstraint(Sketcher.Constraint("Vertical", 11))
sketch10.addConstraint(Sketcher.Constraint("Horizontal", 12))
sketch10.addConstraint(Sketcher.Constraint("Vertical", 13))
sketch10.addConstraint(Sketcher.Constraint("Horizontal", 14))
sketch10.addConstraint(Sketcher.Constraint("Vertical", 15))
sketch10.addConstraint(Sketcher.Constraint("Vertical", 1, 2, 4, 2))
sketch10.addConstraint(Sketcher.Constraint("Vertical", 3, 2, 6, 2))
sketch10.addConstraint(Sketcher.Constraint("Vertical", 9, 2, 12, 2))
sketch10.addConstraint(Sketcher.Constraint("Vertical", 11, 2, 14, 2))
sketch10.addConstraint(Sketcher.Constraint("Equal", 3, 5))
sketch10.addConstraint(Sketcher.Constraint("Equal", 7, 9))
sketch10.addConstraint(Sketcher.Constraint("Equal", 11, 13))
sketch10.addConstraint(Sketcher.Constraint("DistanceY", 1, 2, 1, 1, Q("3.5 mm")))
sketch10.addConstraint(Sketcher.Constraint("DistanceX", 5, 2, 8, 2, Q("2 mm")))
sketch10.addConstraint(Sketcher.Constraint("DistanceY", 8, 2, 4, 2, Q("34 mm")))
sketch10.addConstraint(Sketcher.Constraint("DistanceX", 10, 2, 6, 2, Q("2 mm")))
sketch10.addConstraint(Sketcher.Constraint("DistanceX", 0, 2, 0, 1, Q("49.72 mm")))
sketch10.addConstraint(Sketcher.Constraint("DistanceX", 0, 2, -1, 1, Q("17.56 mm")))
sketch10.addConstraint(Sketcher.Constraint("DistanceY", -1, 1, 4, 2, Q("18.75 mm")))
sketch10.addConstraint(Sketcher.Constraint("DistanceY", -1, 1, 0, 2, Q("23.754742 mm")))
sketch10.addConstraint(Sketcher.Constraint("DistanceY", 12, 2, -1, 1, Q("20.254742 mm")))
pocket7 = body.newObject("PartDesign::Pocket", "Pocket006")
pocket7.Profile = sketch10
pocket7.Length = 4

doc.recompute()
